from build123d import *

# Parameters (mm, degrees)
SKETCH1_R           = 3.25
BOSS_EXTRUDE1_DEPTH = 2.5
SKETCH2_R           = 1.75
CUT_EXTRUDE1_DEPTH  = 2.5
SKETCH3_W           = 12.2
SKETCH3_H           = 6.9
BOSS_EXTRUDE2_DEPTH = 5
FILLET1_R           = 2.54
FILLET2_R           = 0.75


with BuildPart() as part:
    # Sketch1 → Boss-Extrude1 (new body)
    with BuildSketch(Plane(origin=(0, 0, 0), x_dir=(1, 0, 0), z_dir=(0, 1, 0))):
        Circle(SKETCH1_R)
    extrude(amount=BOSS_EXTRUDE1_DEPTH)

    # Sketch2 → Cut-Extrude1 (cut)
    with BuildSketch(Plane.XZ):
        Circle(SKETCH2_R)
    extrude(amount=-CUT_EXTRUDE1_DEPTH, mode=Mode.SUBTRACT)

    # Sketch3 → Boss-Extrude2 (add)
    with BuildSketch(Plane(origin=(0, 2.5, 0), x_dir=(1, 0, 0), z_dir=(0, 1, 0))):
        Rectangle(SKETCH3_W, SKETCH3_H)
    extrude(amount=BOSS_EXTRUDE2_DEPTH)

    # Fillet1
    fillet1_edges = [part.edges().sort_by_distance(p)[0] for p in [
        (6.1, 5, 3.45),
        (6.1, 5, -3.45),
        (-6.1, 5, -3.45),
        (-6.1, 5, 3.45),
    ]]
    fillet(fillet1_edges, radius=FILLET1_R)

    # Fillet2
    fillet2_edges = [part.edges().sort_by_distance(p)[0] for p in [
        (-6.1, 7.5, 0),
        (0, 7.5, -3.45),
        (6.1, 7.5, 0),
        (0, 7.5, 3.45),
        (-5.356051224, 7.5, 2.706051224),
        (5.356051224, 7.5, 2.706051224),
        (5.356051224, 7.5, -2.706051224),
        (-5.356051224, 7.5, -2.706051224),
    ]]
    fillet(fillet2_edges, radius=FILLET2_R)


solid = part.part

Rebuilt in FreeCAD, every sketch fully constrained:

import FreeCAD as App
import Part
import Sketcher
from FreeCAD import Vector
Q = App.Units.Quantity


def edges_at(feature, points):
    """Names of the edges that pass closest to the given points."""
    edges = feature.Shape.Edges
    near = lambda p: min(range(len(edges)), key=lambda i: edges[i].distToShape(Part.Vertex(*p))[0])
    return sorted({f"Edge{near(p) + 1}" for p in points})


def add_polygon(sketch, points):
    """Adds a closed chain of lines whose ends are joined by coincident constraints."""
    first, n = sketch.GeometryCount, len(points)
    for a, b in zip(points, points[1:] + points[:1]):
        sketch.addGeometry(Part.LineSegment(App.Vector(*a, 0), App.Vector(*b, 0)), False)
    for i in range(n):
        sketch.addConstraint(Sketcher.Constraint("Coincident", first + i, 2, first + (i + 1) % n, 1))

doc = App.newDocument("Part")
body = doc.addObject("PartDesign::Body", "Body")

# Sketch on XZ plane
sketch1 = body.newObject("Sketcher::SketchObject", "Sketch")
sketch1.AttachmentSupport = (doc.getObject("XZ_Plane"), [""])
sketch1.MapMode = "FlatFace"
sketch1.addGeometry(Part.Circle(Vector(0, 0, 0), Vector(0, 0, 1), 3.2), False)
sketch1.addConstraint(Sketcher.Constraint("Coincident", 0, 3, -1, 1))
sketch1.addConstraint(Sketcher.Constraint("Diameter", 0, Q("6.5 mm")))
pad1 = body.newObject("PartDesign::Pad", "Pad")
pad1.Profile = sketch1
pad1.Length = 2.5
pad1.Reversed = True

# Sketch on XZ plane
sketch2 = body.newObject("Sketcher::SketchObject", "Sketch001")
sketch2.AttachmentSupport = (doc.getObject("XZ_Plane"), [""])
sketch2.MapMode = "FlatFace"
sketch2.addGeometry(Part.Circle(Vector(0, 0, 0), Vector(0, 0, 1), 1.8), False)
sketch2.addConstraint(Sketcher.Constraint("Coincident", 0, 3, -1, 1))
sketch2.addConstraint(Sketcher.Constraint("Diameter", 0, Q("3.5 mm")))
pocket1 = body.newObject("PartDesign::Pocket", "Pocket")
pocket1.Profile = sketch2
pocket1.Length = 2.5

# Sketch on XZ plane
sketch3 = body.newObject("Sketcher::SketchObject", "Sketch002")
sketch3.AttachmentSupport = (doc.getObject("XZ_Plane"), [""])
sketch3.MapMode = "FlatFace"
sketch3.AttachmentOffset = App.Placement(Vector(0, 0, -2.5), App.Rotation())
add_polygon(sketch3, [(-6, -3), (-6, 3), (6, 3), (6, -3)])  # lines 0-3
sketch3.addConstraint(Sketcher.Constraint("Vertical", 0))
sketch3.addConstraint(Sketcher.Constraint("Horizontal", 1))
sketch3.addConstraint(Sketcher.Constraint("Vertical", 2))
sketch3.addConstraint(Sketcher.Constraint("Horizontal", 3))
sketch3.addConstraint(Sketcher.Constraint("Symmetric", 0, 2, 2, 2, -1, 1))
sketch3.addConstraint(Sketcher.Constraint("DistanceX", 1, 1, 1, 2, Q("12.2 mm")))
sketch3.addConstraint(Sketcher.Constraint("DistanceY", 0, 1, 0, 2, Q("6.9 mm")))
pad2 = body.newObject("PartDesign::Pad", "Pad001")
pad2.Profile = sketch3
pad2.Length = 5
pad2.Reversed = True
doc.recompute()

fillet = body.newObject("PartDesign::Fillet", "Fillet")
fillet.Base = (pad2, edges_at(pad2, [
    (6.1, 5, 3.45),
    (6.1, 5, -3.45),
    (-6.1, 5, -3.45),
    (-6.1, 5, 3.45),
]))
fillet.Radius = 2.54
doc.recompute()

fillet2 = body.newObject("PartDesign::Fillet", "Fillet001")
fillet2.Base = (fillet, edges_at(fillet, [
    (-6.1, 7.5, 0),
    (0, 7.5, -3.45),
    (6.1, 7.5, 0),
    (0, 7.5, 3.45),
    (-5.356, 7.5, 2.706),
    (5.356, 7.5, 2.706),
    (5.356, 7.5, -2.706),
    (-5.356, 7.5, -2.706),
]))
fillet2.Radius = 0.75

doc.recompute()
